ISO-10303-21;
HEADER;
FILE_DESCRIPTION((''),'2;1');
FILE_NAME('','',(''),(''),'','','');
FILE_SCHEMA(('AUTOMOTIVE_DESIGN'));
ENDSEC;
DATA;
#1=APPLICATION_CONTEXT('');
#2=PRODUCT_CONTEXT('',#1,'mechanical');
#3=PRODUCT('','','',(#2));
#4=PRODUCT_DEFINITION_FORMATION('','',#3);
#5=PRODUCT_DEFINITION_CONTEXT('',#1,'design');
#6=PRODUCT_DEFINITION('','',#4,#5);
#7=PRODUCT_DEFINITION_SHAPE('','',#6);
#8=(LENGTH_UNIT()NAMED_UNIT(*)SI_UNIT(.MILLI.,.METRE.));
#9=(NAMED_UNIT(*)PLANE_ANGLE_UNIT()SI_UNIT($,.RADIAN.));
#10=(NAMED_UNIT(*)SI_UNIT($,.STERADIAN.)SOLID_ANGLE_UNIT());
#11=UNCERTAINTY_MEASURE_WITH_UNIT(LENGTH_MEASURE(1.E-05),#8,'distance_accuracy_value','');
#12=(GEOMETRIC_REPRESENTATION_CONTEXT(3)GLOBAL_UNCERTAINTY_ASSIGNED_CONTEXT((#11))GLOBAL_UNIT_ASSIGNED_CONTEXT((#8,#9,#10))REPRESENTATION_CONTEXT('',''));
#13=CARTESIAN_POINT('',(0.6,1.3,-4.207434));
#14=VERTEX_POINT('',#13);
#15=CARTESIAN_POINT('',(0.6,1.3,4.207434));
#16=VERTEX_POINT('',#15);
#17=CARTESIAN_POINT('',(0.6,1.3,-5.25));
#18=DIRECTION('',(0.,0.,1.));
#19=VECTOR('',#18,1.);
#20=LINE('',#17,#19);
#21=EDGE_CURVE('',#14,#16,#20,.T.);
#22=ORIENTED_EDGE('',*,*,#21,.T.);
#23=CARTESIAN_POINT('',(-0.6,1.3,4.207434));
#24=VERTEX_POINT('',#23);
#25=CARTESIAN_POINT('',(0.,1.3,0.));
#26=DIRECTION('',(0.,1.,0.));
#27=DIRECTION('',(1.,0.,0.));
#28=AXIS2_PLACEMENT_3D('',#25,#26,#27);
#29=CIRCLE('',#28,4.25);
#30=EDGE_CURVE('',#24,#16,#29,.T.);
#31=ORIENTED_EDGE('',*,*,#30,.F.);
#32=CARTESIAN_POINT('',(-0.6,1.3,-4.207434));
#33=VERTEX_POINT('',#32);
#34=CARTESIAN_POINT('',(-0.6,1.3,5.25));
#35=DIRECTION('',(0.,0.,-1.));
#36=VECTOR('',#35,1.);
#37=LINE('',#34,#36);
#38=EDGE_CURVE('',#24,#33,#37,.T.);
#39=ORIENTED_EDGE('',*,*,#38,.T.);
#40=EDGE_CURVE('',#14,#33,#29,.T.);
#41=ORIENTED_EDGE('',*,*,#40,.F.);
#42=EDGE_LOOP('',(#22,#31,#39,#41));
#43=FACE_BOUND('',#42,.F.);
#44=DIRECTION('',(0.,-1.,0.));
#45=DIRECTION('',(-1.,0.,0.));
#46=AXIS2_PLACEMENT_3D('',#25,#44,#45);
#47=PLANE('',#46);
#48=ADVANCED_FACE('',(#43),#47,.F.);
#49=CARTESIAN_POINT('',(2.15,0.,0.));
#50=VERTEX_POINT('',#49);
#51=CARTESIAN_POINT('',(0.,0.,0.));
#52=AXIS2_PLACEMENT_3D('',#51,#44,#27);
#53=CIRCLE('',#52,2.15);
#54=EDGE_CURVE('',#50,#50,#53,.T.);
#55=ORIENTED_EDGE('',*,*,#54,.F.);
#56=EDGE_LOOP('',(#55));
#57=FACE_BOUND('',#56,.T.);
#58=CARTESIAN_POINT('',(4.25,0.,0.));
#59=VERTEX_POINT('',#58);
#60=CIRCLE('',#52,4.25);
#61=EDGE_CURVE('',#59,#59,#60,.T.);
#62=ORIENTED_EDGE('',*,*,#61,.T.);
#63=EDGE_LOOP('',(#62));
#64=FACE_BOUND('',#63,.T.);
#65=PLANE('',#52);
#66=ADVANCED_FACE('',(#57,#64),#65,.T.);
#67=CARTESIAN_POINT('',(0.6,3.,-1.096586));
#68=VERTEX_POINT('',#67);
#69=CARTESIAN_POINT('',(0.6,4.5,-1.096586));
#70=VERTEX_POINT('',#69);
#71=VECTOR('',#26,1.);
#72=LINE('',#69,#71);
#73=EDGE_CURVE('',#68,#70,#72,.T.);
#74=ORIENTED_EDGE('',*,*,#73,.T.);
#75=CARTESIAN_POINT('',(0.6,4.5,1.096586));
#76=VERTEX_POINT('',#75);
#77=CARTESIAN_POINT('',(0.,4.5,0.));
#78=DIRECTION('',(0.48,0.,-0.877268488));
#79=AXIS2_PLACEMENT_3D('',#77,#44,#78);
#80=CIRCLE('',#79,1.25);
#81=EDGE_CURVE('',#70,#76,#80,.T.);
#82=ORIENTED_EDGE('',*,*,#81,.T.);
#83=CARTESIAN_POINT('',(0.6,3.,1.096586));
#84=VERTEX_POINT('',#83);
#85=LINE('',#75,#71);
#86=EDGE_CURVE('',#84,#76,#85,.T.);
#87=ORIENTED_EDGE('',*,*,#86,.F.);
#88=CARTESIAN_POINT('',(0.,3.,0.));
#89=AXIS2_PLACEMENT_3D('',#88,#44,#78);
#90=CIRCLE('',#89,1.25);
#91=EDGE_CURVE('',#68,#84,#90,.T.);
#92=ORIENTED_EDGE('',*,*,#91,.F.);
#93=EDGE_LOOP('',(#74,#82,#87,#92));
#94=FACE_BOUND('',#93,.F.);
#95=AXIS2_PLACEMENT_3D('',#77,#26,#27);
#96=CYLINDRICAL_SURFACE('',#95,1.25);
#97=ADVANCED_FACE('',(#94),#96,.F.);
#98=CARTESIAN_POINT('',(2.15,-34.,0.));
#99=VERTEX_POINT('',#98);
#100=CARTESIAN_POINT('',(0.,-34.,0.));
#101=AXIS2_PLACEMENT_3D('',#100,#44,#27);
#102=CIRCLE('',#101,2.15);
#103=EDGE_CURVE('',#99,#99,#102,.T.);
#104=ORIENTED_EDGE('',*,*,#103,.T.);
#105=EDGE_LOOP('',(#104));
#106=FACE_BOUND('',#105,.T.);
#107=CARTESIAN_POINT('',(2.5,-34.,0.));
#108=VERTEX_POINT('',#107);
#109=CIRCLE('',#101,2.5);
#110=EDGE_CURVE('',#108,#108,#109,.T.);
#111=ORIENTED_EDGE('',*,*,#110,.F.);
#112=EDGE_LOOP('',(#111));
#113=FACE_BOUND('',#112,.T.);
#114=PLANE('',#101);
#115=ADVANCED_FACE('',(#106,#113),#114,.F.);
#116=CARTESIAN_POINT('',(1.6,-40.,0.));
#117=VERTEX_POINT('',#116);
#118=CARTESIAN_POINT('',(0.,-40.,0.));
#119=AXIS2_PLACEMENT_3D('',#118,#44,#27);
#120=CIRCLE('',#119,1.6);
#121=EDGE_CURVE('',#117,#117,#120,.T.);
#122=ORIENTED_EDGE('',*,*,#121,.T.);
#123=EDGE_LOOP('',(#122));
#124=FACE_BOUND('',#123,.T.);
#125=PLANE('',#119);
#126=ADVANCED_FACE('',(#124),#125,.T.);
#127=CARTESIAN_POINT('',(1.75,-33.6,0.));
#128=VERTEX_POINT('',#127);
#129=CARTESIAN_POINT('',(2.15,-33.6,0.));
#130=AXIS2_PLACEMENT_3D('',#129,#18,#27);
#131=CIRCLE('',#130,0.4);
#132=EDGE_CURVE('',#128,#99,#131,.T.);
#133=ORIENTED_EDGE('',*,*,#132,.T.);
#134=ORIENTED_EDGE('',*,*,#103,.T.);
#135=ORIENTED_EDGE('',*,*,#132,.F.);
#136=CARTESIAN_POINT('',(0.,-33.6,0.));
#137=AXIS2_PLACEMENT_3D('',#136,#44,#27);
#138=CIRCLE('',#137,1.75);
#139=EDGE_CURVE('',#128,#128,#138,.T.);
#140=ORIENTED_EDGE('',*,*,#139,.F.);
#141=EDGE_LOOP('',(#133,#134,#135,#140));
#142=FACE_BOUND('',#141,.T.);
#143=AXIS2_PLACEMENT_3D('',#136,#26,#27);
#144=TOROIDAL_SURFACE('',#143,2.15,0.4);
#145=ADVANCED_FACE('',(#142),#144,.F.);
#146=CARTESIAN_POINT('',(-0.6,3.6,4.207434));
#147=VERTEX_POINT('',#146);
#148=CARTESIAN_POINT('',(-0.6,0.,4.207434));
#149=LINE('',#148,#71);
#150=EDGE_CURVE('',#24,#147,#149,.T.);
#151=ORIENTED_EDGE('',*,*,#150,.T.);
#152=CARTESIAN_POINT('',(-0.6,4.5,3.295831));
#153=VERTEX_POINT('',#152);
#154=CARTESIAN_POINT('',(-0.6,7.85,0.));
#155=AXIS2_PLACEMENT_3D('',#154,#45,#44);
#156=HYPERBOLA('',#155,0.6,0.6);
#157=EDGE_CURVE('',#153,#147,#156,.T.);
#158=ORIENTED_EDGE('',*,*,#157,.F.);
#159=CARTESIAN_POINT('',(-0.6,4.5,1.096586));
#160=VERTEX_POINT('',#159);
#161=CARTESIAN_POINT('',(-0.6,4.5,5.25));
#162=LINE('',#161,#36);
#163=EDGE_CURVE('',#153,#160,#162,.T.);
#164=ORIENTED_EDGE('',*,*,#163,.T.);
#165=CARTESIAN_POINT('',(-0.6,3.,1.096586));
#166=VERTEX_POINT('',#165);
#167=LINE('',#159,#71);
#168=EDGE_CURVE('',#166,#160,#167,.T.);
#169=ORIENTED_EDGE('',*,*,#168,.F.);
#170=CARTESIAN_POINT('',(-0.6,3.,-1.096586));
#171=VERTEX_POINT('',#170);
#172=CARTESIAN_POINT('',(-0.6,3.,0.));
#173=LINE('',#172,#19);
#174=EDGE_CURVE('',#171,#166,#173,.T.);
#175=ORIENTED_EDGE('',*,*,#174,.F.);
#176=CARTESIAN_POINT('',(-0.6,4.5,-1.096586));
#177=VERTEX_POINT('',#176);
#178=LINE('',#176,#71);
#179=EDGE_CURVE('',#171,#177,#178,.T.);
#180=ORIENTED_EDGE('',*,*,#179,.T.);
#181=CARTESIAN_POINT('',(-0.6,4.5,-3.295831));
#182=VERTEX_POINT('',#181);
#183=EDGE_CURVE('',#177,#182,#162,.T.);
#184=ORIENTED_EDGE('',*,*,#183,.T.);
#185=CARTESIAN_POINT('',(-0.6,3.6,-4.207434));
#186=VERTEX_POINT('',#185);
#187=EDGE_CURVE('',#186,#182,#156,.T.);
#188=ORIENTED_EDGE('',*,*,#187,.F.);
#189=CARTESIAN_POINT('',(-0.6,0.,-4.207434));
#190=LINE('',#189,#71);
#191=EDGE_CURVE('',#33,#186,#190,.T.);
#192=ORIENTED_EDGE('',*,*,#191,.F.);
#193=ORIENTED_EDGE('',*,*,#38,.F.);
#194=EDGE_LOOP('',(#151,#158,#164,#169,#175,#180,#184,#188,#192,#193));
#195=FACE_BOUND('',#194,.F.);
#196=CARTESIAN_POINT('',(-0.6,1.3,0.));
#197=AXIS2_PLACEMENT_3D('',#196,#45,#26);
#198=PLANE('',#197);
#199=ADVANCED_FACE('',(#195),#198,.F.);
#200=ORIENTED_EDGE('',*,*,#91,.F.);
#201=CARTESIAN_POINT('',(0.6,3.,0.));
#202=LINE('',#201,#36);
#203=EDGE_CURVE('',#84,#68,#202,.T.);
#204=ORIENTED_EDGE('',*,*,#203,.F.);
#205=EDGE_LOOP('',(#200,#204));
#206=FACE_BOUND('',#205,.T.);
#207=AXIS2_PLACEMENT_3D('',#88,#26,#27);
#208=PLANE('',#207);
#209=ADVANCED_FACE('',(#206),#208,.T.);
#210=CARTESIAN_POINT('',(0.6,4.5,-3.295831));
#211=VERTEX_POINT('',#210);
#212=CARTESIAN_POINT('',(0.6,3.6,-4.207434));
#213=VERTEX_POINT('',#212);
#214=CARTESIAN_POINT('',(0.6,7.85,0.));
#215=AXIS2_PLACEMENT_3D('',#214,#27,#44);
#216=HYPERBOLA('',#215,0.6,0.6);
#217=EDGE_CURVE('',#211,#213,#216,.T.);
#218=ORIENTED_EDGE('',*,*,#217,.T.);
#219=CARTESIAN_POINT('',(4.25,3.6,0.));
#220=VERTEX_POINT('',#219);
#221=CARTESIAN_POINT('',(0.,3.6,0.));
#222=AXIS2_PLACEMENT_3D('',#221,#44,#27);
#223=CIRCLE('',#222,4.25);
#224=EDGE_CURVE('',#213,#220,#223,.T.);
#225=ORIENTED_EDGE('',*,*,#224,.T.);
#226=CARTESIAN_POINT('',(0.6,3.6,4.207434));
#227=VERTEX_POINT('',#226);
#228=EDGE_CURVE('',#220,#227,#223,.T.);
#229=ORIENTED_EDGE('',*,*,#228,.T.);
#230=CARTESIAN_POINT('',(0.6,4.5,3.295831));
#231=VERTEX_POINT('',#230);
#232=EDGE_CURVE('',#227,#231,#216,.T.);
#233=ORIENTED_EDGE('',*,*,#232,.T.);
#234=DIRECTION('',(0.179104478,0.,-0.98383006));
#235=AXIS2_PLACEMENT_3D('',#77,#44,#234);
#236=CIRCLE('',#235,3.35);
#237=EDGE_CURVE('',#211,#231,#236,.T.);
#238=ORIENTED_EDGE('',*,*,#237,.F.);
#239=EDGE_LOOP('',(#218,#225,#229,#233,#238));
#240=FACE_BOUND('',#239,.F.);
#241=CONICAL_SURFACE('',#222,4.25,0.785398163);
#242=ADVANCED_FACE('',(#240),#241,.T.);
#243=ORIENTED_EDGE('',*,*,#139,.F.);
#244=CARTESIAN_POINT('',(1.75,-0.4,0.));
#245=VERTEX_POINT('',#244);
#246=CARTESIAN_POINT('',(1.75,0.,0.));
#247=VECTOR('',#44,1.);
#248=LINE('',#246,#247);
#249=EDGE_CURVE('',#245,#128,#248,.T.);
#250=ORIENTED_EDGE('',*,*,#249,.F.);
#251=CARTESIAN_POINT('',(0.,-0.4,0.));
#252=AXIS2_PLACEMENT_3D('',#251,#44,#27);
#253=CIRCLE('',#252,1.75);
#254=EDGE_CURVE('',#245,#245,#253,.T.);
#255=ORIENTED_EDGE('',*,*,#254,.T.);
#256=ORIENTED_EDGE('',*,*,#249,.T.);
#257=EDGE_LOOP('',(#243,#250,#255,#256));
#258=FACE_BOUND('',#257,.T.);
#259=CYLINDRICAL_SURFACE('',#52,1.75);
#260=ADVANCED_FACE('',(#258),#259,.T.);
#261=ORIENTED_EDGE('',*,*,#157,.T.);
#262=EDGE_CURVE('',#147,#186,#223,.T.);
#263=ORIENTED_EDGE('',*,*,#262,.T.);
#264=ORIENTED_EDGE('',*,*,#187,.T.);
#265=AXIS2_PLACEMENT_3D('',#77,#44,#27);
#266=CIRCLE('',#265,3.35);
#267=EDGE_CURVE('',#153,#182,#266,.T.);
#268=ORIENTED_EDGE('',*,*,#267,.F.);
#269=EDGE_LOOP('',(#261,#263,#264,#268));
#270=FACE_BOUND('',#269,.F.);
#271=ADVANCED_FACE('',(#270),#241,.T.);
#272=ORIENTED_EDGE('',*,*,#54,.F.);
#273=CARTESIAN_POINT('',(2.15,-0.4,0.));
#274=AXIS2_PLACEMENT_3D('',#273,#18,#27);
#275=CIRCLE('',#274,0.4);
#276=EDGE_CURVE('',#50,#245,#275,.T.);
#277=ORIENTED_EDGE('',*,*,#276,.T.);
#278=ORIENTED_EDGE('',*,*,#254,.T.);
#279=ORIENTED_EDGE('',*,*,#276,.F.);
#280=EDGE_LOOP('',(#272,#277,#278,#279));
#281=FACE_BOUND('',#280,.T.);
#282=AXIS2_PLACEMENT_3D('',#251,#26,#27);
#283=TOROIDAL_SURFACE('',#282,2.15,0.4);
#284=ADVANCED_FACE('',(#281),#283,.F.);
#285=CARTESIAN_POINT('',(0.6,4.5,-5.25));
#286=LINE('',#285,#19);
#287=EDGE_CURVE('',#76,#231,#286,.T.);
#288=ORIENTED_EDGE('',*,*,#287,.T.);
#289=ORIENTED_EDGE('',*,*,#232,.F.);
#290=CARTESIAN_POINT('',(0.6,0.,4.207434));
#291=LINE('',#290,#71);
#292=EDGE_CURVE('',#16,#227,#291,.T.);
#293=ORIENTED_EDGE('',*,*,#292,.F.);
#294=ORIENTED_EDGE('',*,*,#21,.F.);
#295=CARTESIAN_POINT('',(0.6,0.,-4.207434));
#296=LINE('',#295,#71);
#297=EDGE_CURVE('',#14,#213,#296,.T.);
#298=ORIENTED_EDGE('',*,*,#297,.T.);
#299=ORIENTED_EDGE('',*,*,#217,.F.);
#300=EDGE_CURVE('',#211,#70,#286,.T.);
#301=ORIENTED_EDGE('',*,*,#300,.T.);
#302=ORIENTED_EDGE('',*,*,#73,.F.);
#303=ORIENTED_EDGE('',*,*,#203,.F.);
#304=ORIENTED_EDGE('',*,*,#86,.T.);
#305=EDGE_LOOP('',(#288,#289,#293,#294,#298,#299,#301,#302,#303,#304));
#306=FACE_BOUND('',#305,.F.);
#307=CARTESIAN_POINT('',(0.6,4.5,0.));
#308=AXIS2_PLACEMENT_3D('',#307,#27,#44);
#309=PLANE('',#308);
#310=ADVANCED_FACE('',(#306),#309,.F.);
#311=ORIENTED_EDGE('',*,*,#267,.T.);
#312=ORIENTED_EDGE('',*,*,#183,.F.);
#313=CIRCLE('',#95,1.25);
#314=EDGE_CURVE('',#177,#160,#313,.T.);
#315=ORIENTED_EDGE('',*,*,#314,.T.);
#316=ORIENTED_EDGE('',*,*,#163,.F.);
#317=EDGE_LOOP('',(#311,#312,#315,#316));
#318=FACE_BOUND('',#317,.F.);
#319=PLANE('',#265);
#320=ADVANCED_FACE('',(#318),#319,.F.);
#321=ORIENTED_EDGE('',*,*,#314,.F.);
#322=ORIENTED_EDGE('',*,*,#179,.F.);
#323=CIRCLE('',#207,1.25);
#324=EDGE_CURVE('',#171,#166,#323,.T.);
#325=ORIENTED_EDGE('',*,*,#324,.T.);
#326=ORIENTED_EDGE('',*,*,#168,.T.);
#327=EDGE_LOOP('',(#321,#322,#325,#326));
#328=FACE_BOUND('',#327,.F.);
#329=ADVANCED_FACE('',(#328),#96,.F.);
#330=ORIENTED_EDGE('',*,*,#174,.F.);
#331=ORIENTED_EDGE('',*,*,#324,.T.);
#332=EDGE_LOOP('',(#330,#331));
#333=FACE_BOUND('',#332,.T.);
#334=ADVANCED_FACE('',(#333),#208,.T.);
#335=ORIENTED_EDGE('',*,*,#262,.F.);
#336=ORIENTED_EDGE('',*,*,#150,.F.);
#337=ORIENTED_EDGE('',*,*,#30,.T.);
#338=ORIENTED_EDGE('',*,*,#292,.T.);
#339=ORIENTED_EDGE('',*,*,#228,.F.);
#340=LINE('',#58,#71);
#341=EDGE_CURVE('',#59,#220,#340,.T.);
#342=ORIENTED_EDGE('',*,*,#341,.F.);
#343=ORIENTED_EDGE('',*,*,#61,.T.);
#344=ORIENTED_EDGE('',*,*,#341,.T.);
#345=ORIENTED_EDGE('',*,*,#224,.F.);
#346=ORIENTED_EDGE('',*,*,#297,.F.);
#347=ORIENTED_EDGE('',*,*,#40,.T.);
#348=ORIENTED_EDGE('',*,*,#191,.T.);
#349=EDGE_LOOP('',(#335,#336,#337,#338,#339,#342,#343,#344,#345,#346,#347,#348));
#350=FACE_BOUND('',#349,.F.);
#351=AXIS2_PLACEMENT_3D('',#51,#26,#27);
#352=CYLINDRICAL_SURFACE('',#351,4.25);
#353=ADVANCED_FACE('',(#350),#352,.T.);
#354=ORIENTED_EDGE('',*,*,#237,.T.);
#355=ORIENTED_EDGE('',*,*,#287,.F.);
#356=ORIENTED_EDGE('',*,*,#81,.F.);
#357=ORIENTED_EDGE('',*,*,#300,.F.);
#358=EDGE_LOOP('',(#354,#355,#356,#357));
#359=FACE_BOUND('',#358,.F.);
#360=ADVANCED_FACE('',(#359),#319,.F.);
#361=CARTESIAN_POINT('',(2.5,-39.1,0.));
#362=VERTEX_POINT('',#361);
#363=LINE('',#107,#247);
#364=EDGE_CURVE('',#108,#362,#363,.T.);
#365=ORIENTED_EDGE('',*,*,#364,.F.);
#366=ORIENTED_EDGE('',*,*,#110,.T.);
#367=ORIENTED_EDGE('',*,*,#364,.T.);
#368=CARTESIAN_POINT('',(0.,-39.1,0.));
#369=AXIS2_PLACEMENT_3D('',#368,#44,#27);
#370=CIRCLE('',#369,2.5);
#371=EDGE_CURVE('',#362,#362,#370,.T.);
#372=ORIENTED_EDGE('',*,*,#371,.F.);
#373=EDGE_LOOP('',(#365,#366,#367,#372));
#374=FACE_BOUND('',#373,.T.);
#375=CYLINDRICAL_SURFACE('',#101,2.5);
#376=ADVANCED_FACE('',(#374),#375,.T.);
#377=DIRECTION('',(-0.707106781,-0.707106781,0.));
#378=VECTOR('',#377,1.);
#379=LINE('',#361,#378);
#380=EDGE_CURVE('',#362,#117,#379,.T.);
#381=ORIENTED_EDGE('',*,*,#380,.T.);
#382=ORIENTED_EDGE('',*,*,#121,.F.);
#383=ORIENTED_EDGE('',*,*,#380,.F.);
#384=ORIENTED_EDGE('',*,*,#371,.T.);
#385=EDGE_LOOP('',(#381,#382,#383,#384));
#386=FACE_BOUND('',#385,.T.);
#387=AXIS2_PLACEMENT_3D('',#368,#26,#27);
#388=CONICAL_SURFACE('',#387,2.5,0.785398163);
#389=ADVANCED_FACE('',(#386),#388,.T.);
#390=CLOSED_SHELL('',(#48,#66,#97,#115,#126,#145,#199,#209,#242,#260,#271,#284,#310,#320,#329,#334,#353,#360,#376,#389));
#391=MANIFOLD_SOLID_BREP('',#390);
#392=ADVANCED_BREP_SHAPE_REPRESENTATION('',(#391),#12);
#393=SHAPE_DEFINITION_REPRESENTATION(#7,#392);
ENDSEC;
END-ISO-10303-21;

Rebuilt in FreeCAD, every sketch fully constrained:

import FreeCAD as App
import Part
import Sketcher


def edges_at(feature, points):
    """Names of the edges that pass closest to the given points."""
    edges = feature.Shape.Edges
    near = lambda p: min(range(len(edges)), key=lambda i: edges[i].distToShape(Part.Vertex(*p))[0])
    return sorted({f"Edge{near(p) + 1}" for p in points})

doc = App.newDocument("Part")
body = doc.addObject("PartDesign::Body", "Body")

sketch1 = doc.addObject("Sketcher::SketchObject", "Sketch")
body.addObject(sketch1)
sketch1.AttachmentSupport = (doc.XY_Plane, [""])
sketch1.MapMode = "FlatFace"
sketch1.addGeometry([
    Part.LineSegment(App.Vector(1.8, 0, 0), App.Vector(4.2, 0, 0)),
    Part.LineSegment(App.Vector(4.2, 0, 0), App.Vector(4.2, 4.5, 0)),
    Part.LineSegment(App.Vector(4.2, 4.5, 0), App.Vector(0, 4.5, 0)),
    Part.LineSegment(App.Vector(0, 4.5, 0), App.Vector(0, -40, 0)),
    Part.LineSegment(App.Vector(0, -40, 0), App.Vector(2.5, -40, 0)),
    Part.LineSegment(App.Vector(2.5, -40, 0), App.Vector(2.5, -34, 0)),
    Part.LineSegment(App.Vector(2.5, -34, 0), App.Vector(1.8, -34, 0)),
    Part.LineSegment(App.Vector(1.8, -34, 0), App.Vector(1.8, 0, 0)),
], False)
sketch1.addConstraint([
    Sketcher.Constraint("Coincident", 0, 2, 1, 1),
    Sketcher.Constraint("Coincident", 1, 2, 2, 1),
    Sketcher.Constraint("Coincident", 2, 2, 3, 1),
    Sketcher.Constraint("Coincident", 3, 2, 4, 1),
    Sketcher.Constraint("Coincident", 4, 2, 5, 1),
    Sketcher.Constraint("Coincident", 5, 2, 6, 1),
    Sketcher.Constraint("Coincident", 6, 2, 7, 1),
    Sketcher.Constraint("Coincident", 7, 2, 0, 1),
    Sketcher.Constraint("Horizontal", 0),
    Sketcher.Constraint("Vertical", 1),
    Sketcher.Constraint("Horizontal", 2),
    Sketcher.Constraint("Vertical", 3),
    Sketcher.Constraint("Horizontal", 4),
    Sketcher.Constraint("Vertical", 5),
    Sketcher.Constraint("Horizontal", 6),
    Sketcher.Constraint("Vertical", 7),
    Sketcher.Constraint("PointOnObject", 0, 2, -1),
    Sketcher.Constraint("PointOnObject", 2, 2, -2),
    Sketcher.Constraint("Equal", 0, 4),
    Sketcher.Constraint("DistanceY", 5, 1, 5, 2, 6.0),
    Sketcher.Constraint("DistanceY", 1, 1, 1, 2, 4.5),
    Sketcher.Constraint("DistanceY", 3, 2, -1, 1, 40.0),
    Sketcher.Constraint("DistanceX", 0, 1, 0, 2, 2.5),
    Sketcher.Constraint("DistanceX", 2, 2, 2, 1, 4.25),
])
revolution = doc.addObject("PartDesign::Revolution", "Revolution")
body.addObject(revolution)
revolution.Profile = sketch1
revolution.ReferenceAxis = (sketch1, ["V_Axis"])
revolution.Angle = 360

sketch2 = doc.addObject("Sketcher::SketchObject", "Sketch001")
body.addObject(sketch2)
sketch2.AttachmentSupport = (doc.XZ_Plane, [""])
sketch2.MapMode = "FlatFace"
sketch2.AttachmentOffset = App.Placement(App.Vector(0, 0, -4.5), App.Rotation())
sketch2.addGeometry(Part.Circle(App.Vector(0, 0, 0), App.Vector(0, 0, 1), 1.2), False)
sketch2.addConstraint([
    Sketcher.Constraint("Coincident", 0, 3, -1, 1),
    Sketcher.Constraint("Diameter", 0, 2.5),
])
pocket1 = doc.addObject("PartDesign::Pocket", "Pocket")
body.addObject(pocket1)
pocket1.Profile = sketch2
pocket1.Length = 1.5
pocket1.Reversed = True
doc.recompute()

chamfer = doc.addObject("PartDesign::Chamfer", "Chamfer")
body.addObject(chamfer)
chamfer.Base = (pocket1, edges_at(pocket1, [(-4.25, 4.5, 0)]))
chamfer.Size = 0.9

sketch3 = doc.addObject("Sketcher::SketchObject", "Sketch002")
body.addObject(sketch3)
sketch3.AttachmentSupport = (doc.XY_Plane, [""])
sketch3.MapMode = "FlatFace"
sketch3.addGeometry([
    Part.LineSegment(App.Vector(-0.6, 1.3, 0), App.Vector(0.6, 1.3, 0)),
    Part.LineSegment(App.Vector(0.6, 1.3, 0), App.Vector(0.6, 4.5, 0)),
    Part.LineSegment(App.Vector(0.6, 4.5, 0), App.Vector(-0.6, 4.5, 0)),
    Part.LineSegment(App.Vector(-0.6, 4.5, 0), App.Vector(-0.6, 1.3, 0)),
], False)
sketch3.addConstraint([
    Sketcher.Constraint("Coincident", 0, 2, 1, 1),
    Sketcher.Constraint("Coincident", 1, 2, 2, 1),
    Sketcher.Constraint("Coincident", 2, 2, 3, 1),
    Sketcher.Constraint("Coincident", 3, 2, 0, 1),
    Sketcher.Constraint("Horizontal", 0),
    Sketcher.Constraint("Vertical", 1),
    Sketcher.Constraint("Horizontal", 2),
    Sketcher.Constraint("Vertical", 3),
    Sketcher.Constraint("DistanceX", 0, 1, 0, 2, 1.2),
    Sketcher.Constraint("DistanceY", -1, 1, 0, 2, 1.3),
    Sketcher.Constraint("DistanceY", 1, 1, 1, 2, 3.2),
    Sketcher.Constraint("DistanceX", -1, 1, 0, 2, 0.6),
])
pocket2 = doc.addObject("PartDesign::Pocket", "Pocket001")
body.addObject(pocket2)
pocket2.Profile = sketch3
pocket2.Type = "ThroughAll"
pocket2.Midplane = True
doc.recompute()

fillet = doc.addObject("PartDesign::Fillet", "Fillet")
body.addObject(fillet)
fillet.Base = (pocket2, edges_at(pocket2, [(-1.75, 0, 0), (-1.75, -34, 0)]))
fillet.Radius = 0.4
doc.recompute()

chamfer2 = doc.addObject("PartDesign::Chamfer", "Chamfer001")
body.addObject(chamfer2)
chamfer2.Base = (fillet, edges_at(fillet, [(-2.5, -40, 0)]))
chamfer2.Size = 0.9

doc.recompute()
